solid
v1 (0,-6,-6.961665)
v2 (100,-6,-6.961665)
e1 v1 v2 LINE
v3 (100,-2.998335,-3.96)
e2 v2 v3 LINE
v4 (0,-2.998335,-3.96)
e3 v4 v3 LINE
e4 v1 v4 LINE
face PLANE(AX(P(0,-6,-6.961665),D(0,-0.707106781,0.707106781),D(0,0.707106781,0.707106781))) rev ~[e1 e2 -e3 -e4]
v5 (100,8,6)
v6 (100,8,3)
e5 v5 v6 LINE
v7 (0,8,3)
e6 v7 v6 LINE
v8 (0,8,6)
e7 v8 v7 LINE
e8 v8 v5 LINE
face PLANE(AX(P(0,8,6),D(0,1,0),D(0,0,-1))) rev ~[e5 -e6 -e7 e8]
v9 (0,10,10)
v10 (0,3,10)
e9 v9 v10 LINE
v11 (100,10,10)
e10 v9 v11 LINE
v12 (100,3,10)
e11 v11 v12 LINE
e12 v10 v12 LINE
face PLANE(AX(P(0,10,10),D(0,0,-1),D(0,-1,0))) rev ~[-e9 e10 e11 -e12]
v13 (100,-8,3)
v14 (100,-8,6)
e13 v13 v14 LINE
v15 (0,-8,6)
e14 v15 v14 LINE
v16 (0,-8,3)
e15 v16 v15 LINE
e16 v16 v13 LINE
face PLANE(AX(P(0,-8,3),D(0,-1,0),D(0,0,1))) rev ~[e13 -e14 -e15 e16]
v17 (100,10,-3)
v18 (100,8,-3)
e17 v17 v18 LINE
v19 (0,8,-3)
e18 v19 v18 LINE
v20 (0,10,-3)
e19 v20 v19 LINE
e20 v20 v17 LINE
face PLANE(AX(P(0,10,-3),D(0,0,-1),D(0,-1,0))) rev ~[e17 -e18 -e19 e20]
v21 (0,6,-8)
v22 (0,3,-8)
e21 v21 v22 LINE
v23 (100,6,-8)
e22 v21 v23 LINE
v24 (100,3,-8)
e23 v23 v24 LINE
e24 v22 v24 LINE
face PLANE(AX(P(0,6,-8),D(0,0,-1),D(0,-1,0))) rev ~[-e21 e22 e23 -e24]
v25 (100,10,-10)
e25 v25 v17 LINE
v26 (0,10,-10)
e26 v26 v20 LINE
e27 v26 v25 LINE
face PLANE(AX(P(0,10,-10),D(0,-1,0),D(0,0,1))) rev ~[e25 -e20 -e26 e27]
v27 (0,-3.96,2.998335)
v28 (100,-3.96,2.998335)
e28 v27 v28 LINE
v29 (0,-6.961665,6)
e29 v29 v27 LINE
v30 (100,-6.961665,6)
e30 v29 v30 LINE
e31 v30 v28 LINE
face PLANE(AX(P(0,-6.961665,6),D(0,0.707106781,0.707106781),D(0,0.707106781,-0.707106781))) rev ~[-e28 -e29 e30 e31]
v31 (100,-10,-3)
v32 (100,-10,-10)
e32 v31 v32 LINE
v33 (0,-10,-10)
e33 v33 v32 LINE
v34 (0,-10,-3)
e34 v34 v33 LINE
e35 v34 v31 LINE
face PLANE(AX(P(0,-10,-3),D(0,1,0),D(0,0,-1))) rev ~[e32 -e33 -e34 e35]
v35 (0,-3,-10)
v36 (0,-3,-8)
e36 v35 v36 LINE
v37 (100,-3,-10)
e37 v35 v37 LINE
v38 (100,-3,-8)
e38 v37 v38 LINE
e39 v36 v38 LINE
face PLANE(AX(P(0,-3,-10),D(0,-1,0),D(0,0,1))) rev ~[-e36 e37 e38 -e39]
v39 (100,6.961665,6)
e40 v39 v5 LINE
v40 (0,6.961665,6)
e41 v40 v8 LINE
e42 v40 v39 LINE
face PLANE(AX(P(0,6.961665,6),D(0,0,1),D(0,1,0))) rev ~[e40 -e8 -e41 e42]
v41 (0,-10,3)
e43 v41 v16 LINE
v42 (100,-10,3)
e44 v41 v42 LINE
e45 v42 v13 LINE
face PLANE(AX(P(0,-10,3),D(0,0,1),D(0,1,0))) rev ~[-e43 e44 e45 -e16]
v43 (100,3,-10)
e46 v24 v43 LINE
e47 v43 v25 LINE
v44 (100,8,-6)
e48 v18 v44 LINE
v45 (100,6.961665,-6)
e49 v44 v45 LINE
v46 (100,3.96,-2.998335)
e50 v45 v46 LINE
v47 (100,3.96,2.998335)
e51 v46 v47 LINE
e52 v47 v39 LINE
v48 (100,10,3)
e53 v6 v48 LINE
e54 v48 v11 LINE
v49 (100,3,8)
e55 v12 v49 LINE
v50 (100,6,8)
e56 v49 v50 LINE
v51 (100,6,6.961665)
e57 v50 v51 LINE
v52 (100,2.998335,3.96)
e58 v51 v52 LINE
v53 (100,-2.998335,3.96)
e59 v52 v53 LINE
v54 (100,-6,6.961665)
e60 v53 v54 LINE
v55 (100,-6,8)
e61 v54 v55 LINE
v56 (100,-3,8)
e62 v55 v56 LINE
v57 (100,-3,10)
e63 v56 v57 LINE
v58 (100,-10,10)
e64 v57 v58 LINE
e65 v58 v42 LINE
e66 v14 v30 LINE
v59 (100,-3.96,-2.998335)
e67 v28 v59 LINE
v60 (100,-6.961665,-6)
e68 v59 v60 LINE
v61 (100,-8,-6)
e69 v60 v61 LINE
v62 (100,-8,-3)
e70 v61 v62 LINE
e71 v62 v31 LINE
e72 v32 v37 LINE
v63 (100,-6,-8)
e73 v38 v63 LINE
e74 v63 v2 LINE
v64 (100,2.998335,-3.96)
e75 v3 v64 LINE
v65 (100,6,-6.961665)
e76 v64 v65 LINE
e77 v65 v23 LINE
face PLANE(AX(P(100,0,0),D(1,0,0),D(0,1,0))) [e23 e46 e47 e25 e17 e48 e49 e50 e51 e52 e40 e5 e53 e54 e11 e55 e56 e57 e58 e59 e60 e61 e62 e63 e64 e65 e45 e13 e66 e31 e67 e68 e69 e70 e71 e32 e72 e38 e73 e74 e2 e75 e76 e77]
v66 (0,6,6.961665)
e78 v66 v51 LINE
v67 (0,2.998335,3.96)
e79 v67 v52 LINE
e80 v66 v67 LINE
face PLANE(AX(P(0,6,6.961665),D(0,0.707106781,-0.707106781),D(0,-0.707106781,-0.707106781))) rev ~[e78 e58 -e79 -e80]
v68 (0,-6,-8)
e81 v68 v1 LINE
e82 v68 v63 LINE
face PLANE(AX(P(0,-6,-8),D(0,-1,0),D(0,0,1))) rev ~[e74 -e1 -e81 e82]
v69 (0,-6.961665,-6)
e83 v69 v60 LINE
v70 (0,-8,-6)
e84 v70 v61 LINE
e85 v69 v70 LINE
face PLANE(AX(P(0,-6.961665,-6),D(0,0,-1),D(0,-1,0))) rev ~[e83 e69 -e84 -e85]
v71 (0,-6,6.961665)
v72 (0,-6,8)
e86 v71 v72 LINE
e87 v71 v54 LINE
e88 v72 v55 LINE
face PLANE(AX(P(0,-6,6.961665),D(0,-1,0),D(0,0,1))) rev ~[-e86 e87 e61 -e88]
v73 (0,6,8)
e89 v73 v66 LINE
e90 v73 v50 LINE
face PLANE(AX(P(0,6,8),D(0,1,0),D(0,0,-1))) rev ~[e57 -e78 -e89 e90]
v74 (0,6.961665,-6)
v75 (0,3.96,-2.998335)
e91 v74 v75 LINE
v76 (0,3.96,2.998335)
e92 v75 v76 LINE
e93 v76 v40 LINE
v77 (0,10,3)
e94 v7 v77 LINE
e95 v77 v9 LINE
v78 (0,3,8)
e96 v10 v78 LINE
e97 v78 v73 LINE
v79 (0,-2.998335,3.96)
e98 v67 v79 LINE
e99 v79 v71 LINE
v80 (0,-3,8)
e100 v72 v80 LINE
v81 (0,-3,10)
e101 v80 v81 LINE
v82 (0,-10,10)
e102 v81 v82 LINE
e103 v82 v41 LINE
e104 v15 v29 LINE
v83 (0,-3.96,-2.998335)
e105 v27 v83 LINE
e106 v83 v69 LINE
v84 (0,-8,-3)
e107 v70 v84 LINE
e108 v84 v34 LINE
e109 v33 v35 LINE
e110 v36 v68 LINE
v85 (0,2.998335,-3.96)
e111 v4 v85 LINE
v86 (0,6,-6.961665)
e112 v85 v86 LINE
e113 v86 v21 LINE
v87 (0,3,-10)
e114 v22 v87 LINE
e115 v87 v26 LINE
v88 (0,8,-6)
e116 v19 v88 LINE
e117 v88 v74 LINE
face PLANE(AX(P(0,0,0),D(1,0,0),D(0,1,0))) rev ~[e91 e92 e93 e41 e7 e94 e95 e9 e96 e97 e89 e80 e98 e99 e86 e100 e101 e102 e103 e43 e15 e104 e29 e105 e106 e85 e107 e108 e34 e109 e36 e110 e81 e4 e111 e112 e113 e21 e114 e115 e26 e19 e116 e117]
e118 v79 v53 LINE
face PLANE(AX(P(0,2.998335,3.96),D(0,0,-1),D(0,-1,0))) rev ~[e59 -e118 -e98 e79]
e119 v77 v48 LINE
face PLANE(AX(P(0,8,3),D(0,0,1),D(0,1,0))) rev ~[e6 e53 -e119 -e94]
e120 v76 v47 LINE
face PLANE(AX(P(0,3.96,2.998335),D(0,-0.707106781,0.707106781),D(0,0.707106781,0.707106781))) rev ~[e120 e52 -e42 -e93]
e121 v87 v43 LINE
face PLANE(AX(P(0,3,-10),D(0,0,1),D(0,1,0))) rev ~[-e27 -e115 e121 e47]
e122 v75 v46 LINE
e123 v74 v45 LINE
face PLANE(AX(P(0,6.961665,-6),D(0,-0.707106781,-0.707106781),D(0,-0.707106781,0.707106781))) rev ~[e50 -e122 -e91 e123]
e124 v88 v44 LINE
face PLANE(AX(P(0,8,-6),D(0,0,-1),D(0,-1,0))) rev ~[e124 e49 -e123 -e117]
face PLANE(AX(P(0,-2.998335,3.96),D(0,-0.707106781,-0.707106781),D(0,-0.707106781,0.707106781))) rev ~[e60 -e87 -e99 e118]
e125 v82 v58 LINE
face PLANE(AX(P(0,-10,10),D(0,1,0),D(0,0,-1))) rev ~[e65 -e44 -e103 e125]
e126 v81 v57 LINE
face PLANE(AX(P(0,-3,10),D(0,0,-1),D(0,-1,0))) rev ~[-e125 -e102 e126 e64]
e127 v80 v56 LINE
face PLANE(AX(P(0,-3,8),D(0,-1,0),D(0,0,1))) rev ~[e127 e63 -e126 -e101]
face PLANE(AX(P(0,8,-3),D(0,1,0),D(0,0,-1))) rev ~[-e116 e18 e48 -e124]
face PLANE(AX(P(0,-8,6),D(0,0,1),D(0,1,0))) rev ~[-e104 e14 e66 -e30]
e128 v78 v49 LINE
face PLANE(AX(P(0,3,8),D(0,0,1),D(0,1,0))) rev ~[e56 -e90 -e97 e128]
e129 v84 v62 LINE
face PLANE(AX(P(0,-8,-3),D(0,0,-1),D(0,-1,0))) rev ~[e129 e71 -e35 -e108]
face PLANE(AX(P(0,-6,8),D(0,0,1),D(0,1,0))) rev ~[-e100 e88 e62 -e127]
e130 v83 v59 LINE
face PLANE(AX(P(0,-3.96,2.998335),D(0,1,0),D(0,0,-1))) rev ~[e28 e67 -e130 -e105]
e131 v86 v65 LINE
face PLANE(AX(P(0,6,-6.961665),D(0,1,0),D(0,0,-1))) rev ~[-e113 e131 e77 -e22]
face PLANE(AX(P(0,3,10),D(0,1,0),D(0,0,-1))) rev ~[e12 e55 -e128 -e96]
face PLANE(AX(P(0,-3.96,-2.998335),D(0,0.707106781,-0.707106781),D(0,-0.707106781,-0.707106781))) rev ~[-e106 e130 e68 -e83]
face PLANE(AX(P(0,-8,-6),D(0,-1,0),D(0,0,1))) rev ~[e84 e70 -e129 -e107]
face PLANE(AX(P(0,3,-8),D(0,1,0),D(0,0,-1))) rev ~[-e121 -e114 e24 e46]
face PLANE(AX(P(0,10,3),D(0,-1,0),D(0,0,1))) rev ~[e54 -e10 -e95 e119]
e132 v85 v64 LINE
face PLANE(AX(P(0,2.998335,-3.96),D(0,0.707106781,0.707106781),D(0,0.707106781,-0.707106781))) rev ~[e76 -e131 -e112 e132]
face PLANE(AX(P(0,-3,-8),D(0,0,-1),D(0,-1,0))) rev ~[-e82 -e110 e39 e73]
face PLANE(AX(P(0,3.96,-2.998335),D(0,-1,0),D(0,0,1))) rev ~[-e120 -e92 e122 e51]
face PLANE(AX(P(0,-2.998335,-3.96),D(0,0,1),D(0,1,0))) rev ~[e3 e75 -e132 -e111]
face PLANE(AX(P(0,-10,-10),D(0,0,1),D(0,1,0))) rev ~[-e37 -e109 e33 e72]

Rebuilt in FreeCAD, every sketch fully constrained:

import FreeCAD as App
import Part
import Sketcher
from FreeCAD import Vector

doc = App.newDocument("Part")
body = doc.addObject("PartDesign::Body", "Body")

# Sketch on YZ plane
sketch1 = body.newObject("Sketcher::SketchObject", "Sketch")
sketch1.AttachmentSupport = (doc.getObject("YZ_Plane"), [""])
sketch1.MapMode = "FlatFace"
sketch1.addGeometry([
    Part.LineSegment(Vector(2.998335, 3.96, 0), Vector(-2.998335, 3.96, 0)),  # 0
    Part.LineSegment(Vector(-2.998335, 3.96, 0), Vector(-6, 6.961665, 0)),  # 1
    Part.LineSegment(Vector(-6, 6.961665, 0), Vector(-6, 8, 0)),  # 2
    Part.LineSegment(Vector(-6, 8, 0), Vector(-3, 8, 0)),  # 3
    Part.LineSegment(Vector(-3, 8, 0), Vector(-3, 10, 0)),  # 4
    Part.LineSegment(Vector(-3, 10, 0), Vector(-10, 10, 0)),  # 5
    Part.LineSegment(Vector(-10, 10, 0), Vector(-10, 3, 0)),  # 6
    Part.LineSegment(Vector(-10, 3, 0), Vector(-8, 3, 0)),  # 7
    Part.LineSegment(Vector(-8, 3, 0), Vector(-8, 6, 0)),  # 8
    Part.LineSegment(Vector(-8, 6, 0), Vector(-6.961665, 6, 0)),  # 9
    Part.LineSegment(Vector(-6.961665, 6, 0), Vector(-3.96, 2.998335, 0)),  # 10
    Part.LineSegment(Vector(-3.96, 2.998335, 0), Vector(-3.96, -2.998335, 0)),  # 11
    Part.LineSegment(Vector(-3.96, -2.998335, 0), Vector(-6.961665, -6, 0)),  # 12
    Part.LineSegment(Vector(-6.961665, -6, 0), Vector(-8, -6, 0)),  # 13
    Part.LineSegment(Vector(-8, -6, 0), Vector(-8, -3, 0)),  # 14
    Part.LineSegment(Vector(-8, -3, 0), Vector(-10, -3, 0)),  # 15
    Part.LineSegment(Vector(-10, -3, 0), Vector(-10, -10, 0)),  # 16
    Part.LineSegment(Vector(-10, -10, 0), Vector(-3, -10, 0)),  # 17
    Part.LineSegment(Vector(-3, -10, 0), Vector(-3, -8, 0)),  # 18
    Part.LineSegment(Vector(-3, -8, 0), Vector(-6, -8, 0)),  # 19
    Part.LineSegment(Vector(-6, -8, 0), Vector(-6, -6.961665, 0)),  # 20
    Part.LineSegment(Vector(-6, -6.961665, 0), Vector(-2.998335, -3.96, 0)),  # 21
    Part.LineSegment(Vector(-2.998335, -3.96, 0), Vector(2.998335, -3.96, 0)),  # 22
    Part.LineSegment(Vector(2.998335, -3.96, 0), Vector(6, -6.961665, 0)),  # 23
    Part.LineSegment(Vector(6, -6.961665, 0), Vector(6, -8, 0)),  # 24
    Part.LineSegment(Vector(6, -8, 0), Vector(3, -8, 0)),  # 25
    Part.LineSegment(Vector(3, -8, 0), Vector(3, -10, 0)),  # 26
    Part.LineSegment(Vector(3, -10, 0), Vector(10, -10, 0)),  # 27
    Part.LineSegment(Vector(10, -10, 0), Vector(10, -3, 0)),  # 28
    Part.LineSegment(Vector(10, -3, 0), Vector(8, -3, 0)),  # 29
    Part.LineSegment(Vector(8, -3, 0), Vector(8, -6, 0)),  # 30
    Part.LineSegment(Vector(8, -6, 0), Vector(6.961665, -6, 0)),  # 31
    Part.LineSegment(Vector(6.961665, -6, 0), Vector(3.96, -2.998335, 0)),  # 32
    Part.LineSegment(Vector(3.96, -2.998335, 0), Vector(3.96, 2.998335, 0)),  # 33
    Part.LineSegment(Vector(3.96, 2.998335, 0), Vector(6.961665, 6, 0)),  # 34
    Part.LineSegment(Vector(6.961665, 6, 0), Vector(8, 6, 0)),  # 35
    Part.LineSegment(Vector(8, 6, 0), Vector(8, 3, 0)),  # 36
    Part.LineSegment(Vector(8, 3, 0), Vector(10, 3, 0)),  # 37
    Part.LineSegment(Vector(10, 3, 0), Vector(10, 10, 0)),  # 38
    Part.LineSegment(Vector(10, 10, 0), Vector(3, 10, 0)),  # 39
    Part.LineSegment(Vector(3, 10, 0), Vector(3, 8, 0)),  # 40
    Part.LineSegment(Vector(3, 8, 0), Vector(6, 8, 0)),  # 41
    Part.LineSegment(Vector(6, 8, 0), Vector(6, 6.961665, 0)),  # 42
    Part.LineSegment(Vector(6, 6.961665, 0), Vector(2.998335, 3.96, 0)),  # 43
], False)
sketch1.addConstraint([
    Sketcher.Constraint("Coincident", 0, 2, 1, 1),
    Sketcher.Constraint("Coincident", 1, 2, 2, 1),
    Sketcher.Constraint("Coincident", 2, 2, 3, 1),
    Sketcher.Constraint("Coincident", 3, 2, 4, 1),
    Sketcher.Constraint("Coincident", 4, 2, 5, 1),
    Sketcher.Constraint("Coincident", 5, 2, 6, 1),
    Sketcher.Constraint("Coincident", 6, 2, 7, 1),
    Sketcher.Constraint("Coincident", 7, 2, 8, 1),
    Sketcher.Constraint("Coincident", 8, 2, 9, 1),
    Sketcher.Constraint("Coincident", 9, 2, 10, 1),
    Sketcher.Constraint("Coincident", 10, 2, 11, 1),
    Sketcher.Constraint("Coincident", 11, 2, 12, 1),
    Sketcher.Constraint("Coincident", 12, 2, 13, 1),
    Sketcher.Constraint("Coincident", 13, 2, 14, 1),
    Sketcher.Constraint("Coincident", 14, 2, 15, 1),
    Sketcher.Constraint("Coincident", 15, 2, 16, 1),
    Sketcher.Constraint("Coincident", 16, 2, 17, 1),
    Sketcher.Constraint("Coincident", 17, 2, 18, 1),
    Sketcher.Constraint("Coincident", 18, 2, 19, 1),
    Sketcher.Constraint("Coincident", 19, 2, 20, 1),
    Sketcher.Constraint("Coincident", 20, 2, 21, 1),
    Sketcher.Constraint("Coincident", 21, 2, 22, 1),
    Sketcher.Constraint("Coincident", 22, 2, 23, 1),
    Sketcher.Constraint("Coincident", 23, 2, 24, 1),
    Sketcher.Constraint("Coincident", 24, 2, 25, 1),
    Sketcher.Constraint("Coincident", 25, 2, 26, 1),
    Sketcher.Constraint("Coincident", 26, 2, 27, 1),
    Sketcher.Constraint("Coincident", 27, 2, 28, 1),
    Sketcher.Constraint("Coincident", 28, 2, 29, 1),
    Sketcher.Constraint("Coincident", 29, 2, 30, 1),
    Sketcher.Constraint("Coincident", 30, 2, 31, 1),
    Sketcher.Constraint("Coincident", 31, 2, 32, 1),
    Sketcher.Constraint("Coincident", 32, 2, 33, 1),
    Sketcher.Constraint("Coincident", 33, 2, 34, 1),
    Sketcher.Constraint("Coincident", 34, 2, 35, 1),
    Sketcher.Constraint("Coincident", 35, 2, 36, 1),
    Sketcher.Constraint("Coincident", 36, 2, 37, 1),
    Sketcher.Constraint("Coincident", 37, 2, 38, 1),
    Sketcher.Constraint("Coincident", 38, 2, 39, 1),
    Sketcher.Constraint("Coincident", 39, 2, 40, 1),
    Sketcher.Constraint("Coincident", 40, 2, 41, 1),
    Sketcher.Constraint("Coincident", 41, 2, 42, 1),
    Sketcher.Constraint("Coincident", 42, 2, 43, 1),
    Sketcher.Constraint("Coincident", 43, 2, 0, 1),
    Sketcher.Constraint("Horizontal", 0),
    Sketcher.Constraint("Vertical", 2),
    Sketcher.Constraint("Horizontal", 3),
    Sketcher.Constraint("Vertical", 4),
    Sketcher.Constraint("Horizontal", 5),
    Sketcher.Constraint("Vertical", 6),
    Sketcher.Constraint("Horizontal", 7),
    Sketcher.Constraint("Vertical", 8),
    Sketcher.Constraint("Horizontal", 9),
    Sketcher.Constraint("Vertical", 11),
    Sketcher.Constraint("Horizontal", 13),
    Sketcher.Constraint("Vertical", 14),
    Sketcher.Constraint("Horizontal", 15),
    Sketcher.Constraint("Vertical", 16),
    Sketcher.Constraint("Horizontal", 17),
    Sketcher.Constraint("Vertical", 18),
    Sketcher.Constraint("Horizontal", 19),
    Sketcher.Constraint("Vertical", 20),
    Sketcher.Constraint("Horizontal", 22),
    Sketcher.Constraint("Vertical", 24),
    Sketcher.Constraint("Horizontal", 25),
    Sketcher.Constraint("Vertical", 26),
    Sketcher.Constraint("Horizontal", 27),
    Sketcher.Constraint("Vertical", 28),
    Sketcher.Constraint("Horizontal", 29),
    Sketcher.Constraint("Vertical", 30),
    Sketcher.Constraint("Horizontal", 31),
    Sketcher.Constraint("Vertical", 33),
    Sketcher.Constraint("Horizontal", 35),
    Sketcher.Constraint("Vertical", 36),
    Sketcher.Constraint("Horizontal", 37),
    Sketcher.Constraint("Vertical", 38),
    Sketcher.Constraint("Horizontal", 39),
    Sketcher.Constraint("Vertical", 40),
    Sketcher.Constraint("Horizontal", 41),
    Sketcher.Constraint("Vertical", 42),
    Sketcher.Constraint("Symmetric", 0, 2, 22, 2, -1, 1),
    Sketcher.Constraint("Symmetric", 1, 2, 23, 2, -1, 1),
    Sketcher.Constraint("Symmetric", 3, 2, 25, 2, -1, 1),
    Sketcher.Constraint("Symmetric", 5, 2, 27, 2, -1, 1),
    Sketcher.Constraint("Symmetric", 7, 2, 29, 2, -1, 1),
    Sketcher.Constraint("Symmetric", 9, 2, 31, 2, -1, 1),
    Sketcher.Constraint("Symmetric", 10, 2, 32, 2, -1, 1),
    Sketcher.Constraint("Symmetric", 12, 2, 34, 2, -1, 1),
    Sketcher.Constraint("Symmetric", 14, 2, 36, 2, -1, 1),
    Sketcher.Constraint("Symmetric", 16, 2, 38, 2, -1, 1),
    Sketcher.Constraint("Symmetric", 18, 2, 40, 2, -1, 1),
    Sketcher.Constraint("Symmetric", 20, 2, 42, 2, -1, 1),
    Sketcher.Constraint("Symmetric", 20, 2, 23, 2, -2),
    Sketcher.Constraint("Symmetric", 18, 2, 25, 2, -2),
    Sketcher.Constraint("Symmetric", 16, 2, 27, 2, -2),
    Sketcher.Constraint("Symmetric", 14, 2, 29, 2, -2),
    Sketcher.Constraint("Symmetric", 12, 2, 31, 2, -2),
    Sketcher.Constraint("Parallel", 1, 10),
    Sketcher.Constraint("Perpendicular", 10, 12),
    Sketcher.Constraint("Parallel", 12, 21),
    Sketcher.Constraint("Perpendicular", 32, 34),
    Sketcher.Constraint("Parallel", 34, 43),
    Sketcher.Constraint("Horizontal", 11, 2, 32, 2),
    Sketcher.Constraint("Equal", 35, 2),
    Sketcher.Constraint("Equal", 37, 4),
    Sketcher.Constraint("Equal", 39, 6),
    Sketcher.Constraint("Equal", 41, 8),
    Sketcher.Constraint("Equal", 22, 11),
    Sketcher.Constraint("Equal", 1, 10),
    Sketcher.Constraint("DistanceX", 3, 1, 3, 2, 3.0),
    Sketcher.Constraint("DistanceX", 5, 2, 5, 1, 7.0),
    Sketcher.Constraint("DistanceX", 7, 1, 7, 2, 2.0),
    Sketcher.Constraint("DistanceX", 1, 2, -1, 1, 6.0),
    Sketcher.Constraint("DistanceY", -1, 1, 0, 2, 3.96),
    Sketcher.Constraint("DistanceX", 0, 2, 0, 1, 5.99667),
])
pad1 = body.newObject("PartDesign::Pad", "Pad")
pad1.Profile = sketch1
pad1.Length = 100

doc.recompute()
